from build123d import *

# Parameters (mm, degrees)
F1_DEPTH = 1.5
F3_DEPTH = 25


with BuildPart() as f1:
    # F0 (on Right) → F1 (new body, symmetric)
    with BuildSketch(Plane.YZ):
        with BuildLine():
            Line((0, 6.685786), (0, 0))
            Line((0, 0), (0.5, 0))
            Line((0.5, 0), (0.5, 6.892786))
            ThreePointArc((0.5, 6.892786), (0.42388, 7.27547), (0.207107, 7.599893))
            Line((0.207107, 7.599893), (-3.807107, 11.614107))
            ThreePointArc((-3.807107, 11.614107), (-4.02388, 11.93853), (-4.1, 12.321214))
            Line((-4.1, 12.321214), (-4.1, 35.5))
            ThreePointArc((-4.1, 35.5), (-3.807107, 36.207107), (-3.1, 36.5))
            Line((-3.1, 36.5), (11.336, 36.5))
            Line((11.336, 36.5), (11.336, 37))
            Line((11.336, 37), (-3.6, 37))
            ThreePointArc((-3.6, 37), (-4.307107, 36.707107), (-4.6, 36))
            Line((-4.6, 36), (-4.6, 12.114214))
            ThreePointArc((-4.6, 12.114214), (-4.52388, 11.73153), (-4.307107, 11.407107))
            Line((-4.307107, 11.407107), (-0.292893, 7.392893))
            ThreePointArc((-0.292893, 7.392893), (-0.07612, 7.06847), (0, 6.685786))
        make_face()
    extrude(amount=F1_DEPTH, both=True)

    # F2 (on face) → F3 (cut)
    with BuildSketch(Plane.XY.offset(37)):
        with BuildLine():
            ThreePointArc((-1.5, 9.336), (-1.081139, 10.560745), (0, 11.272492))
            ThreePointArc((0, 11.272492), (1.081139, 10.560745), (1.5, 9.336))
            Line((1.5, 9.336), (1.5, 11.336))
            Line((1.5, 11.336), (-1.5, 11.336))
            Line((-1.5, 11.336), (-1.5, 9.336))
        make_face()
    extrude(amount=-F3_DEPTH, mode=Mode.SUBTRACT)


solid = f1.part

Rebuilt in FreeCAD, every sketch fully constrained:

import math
import FreeCAD as App
import Part
import Sketcher
from FreeCAD import Vector
Q = App.Units.Quantity

doc = App.newDocument("Part")
body = doc.addObject("PartDesign::Body", "Body")

# Sketch on YZ plane
sketch1 = doc.addObject("Sketcher::SketchObject", "Sketch")
body.addObject(sketch1)
sketch1.AttachmentSupport = (doc.YZ_Plane, [""])
sketch1.MapMode = "FlatFace"
sketch1.addGeometry(Part.LineSegment(Vector(0, 6.7, 0), Vector(0, 0, 0)), False)
sketch1.addGeometry(Part.LineSegment(Vector(0, 0, 0), Vector(0.5, 0, 0)), False)
sketch1.addGeometry(Part.LineSegment(Vector(0.5, 0, 0), Vector(0.5, 6.9, 0)), False)
sketch1.addGeometry(Part.ArcOfCircle(Part.Circle(Vector(-0.5, 6.9, 0), Vector(0, 0, 1), 1), math.radians(0), math.radians(45)), False)
sketch1.addGeometry(Part.LineSegment(Vector(0.2, 7.6, 0), Vector(-3.8, 11.6, 0)), False)
sketch1.addGeometry(Part.ArcOfCircle(Part.Circle(Vector(-3.1, 12.3, 0), Vector(0, 0, 1), 1), math.radians(180), math.radians(225)), False)
sketch1.addGeometry(Part.LineSegment(Vector(-4.1, 12.3, 0), Vector(-4.1, 35.5, 0)), False)
sketch1.addGeometry(Part.ArcOfCircle(Part.Circle(Vector(-3.1, 35.5, 0), Vector(0, 0, 1), 1), math.radians(90), math.radians(180)), False)
sketch1.addGeometry(Part.LineSegment(Vector(-3.1, 36.5, 0), Vector(11.3, 36.5, 0)), False)
sketch1.addGeometry(Part.LineSegment(Vector(11.3, 36.5, 0), Vector(11.3, 37, 0)), False)
sketch1.addGeometry(Part.LineSegment(Vector(11.3, 37, 0), Vector(-3.6, 37, 0)), False)
sketch1.addGeometry(Part.ArcOfCircle(Part.Circle(Vector(-3.6, 36, 0), Vector(0, 0, 1), 1), math.radians(90), math.radians(180)), False)
sketch1.addGeometry(Part.LineSegment(Vector(-4.6, 36, 0), Vector(-4.6, 12.1, 0)), False)
sketch1.addGeometry(Part.ArcOfCircle(Part.Circle(Vector(-3.6, 12.1, 0), Vector(0, 0, 1), 1), math.radians(180), math.radians(225)), False)
sketch1.addGeometry(Part.LineSegment(Vector(-4.3, 11.4, 0), Vector(-0.3, 7.4, 0)), False)
sketch1.addGeometry(Part.ArcOfCircle(Part.Circle(Vector(-1, 6.7, 0), Vector(0, 0, 1), 1), math.radians(0), math.radians(45)), False)
sketch1.addConstraint(Sketcher.Constraint("Coincident", 0, 2, 1, 1))
sketch1.addConstraint(Sketcher.Constraint("Coincident", 1, 2, 2, 1))
sketch1.addConstraint(Sketcher.Constraint("Coincident", 2, 2, 3, 1))
sketch1.addConstraint(Sketcher.Constraint("Coincident", 3, 2, 4, 1))
sketch1.addConstraint(Sketcher.Constraint("Coincident", 4, 2, 5, 2))
sketch1.addConstraint(Sketcher.Constraint("Coincident", 5, 1, 6, 1))
sketch1.addConstraint(Sketcher.Constraint("Tangent", 6, 2, 7, 2))
sketch1.addConstraint(Sketcher.Constraint("Tangent", 7, 1, 8, 1))
sketch1.addConstraint(Sketcher.Constraint("Coincident", 8, 2, 9, 1))
sketch1.addConstraint(Sketcher.Constraint("Coincident", 9, 2, 10, 1))
sketch1.addConstraint(Sketcher.Constraint("Tangent", 10, 2, 11, 1))
sketch1.addConstraint(Sketcher.Constraint("Tangent", 11, 2, 12, 1))
sketch1.addConstraint(Sketcher.Constraint("Coincident", 12, 2, 13, 1))
sketch1.addConstraint(Sketcher.Constraint("Coincident", 13, 2, 14, 1))
sketch1.addConstraint(Sketcher.Constraint("Coincident", 14, 2, 15, 2))
sketch1.addConstraint(Sketcher.Constraint("Coincident", 15, 1, 0, 1))
sketch1.addConstraint(Sketcher.Constraint("Vertical", 0))
sketch1.addConstraint(Sketcher.Constraint("Horizontal", 1))
sketch1.addConstraint(Sketcher.Constraint("Vertical", 2))
sketch1.addConstraint(Sketcher.Constraint("Vertical", 6))
sketch1.addConstraint(Sketcher.Constraint("Horizontal", 8))
sketch1.addConstraint(Sketcher.Constraint("Vertical", 9))
sketch1.addConstraint(Sketcher.Constraint("Horizontal", 10))
sketch1.addConstraint(Sketcher.Constraint("Vertical", 12))
sketch1.addConstraint(Sketcher.Constraint("Coincident", 0, 2, -1, 1))
sketch1.addConstraint(Sketcher.Constraint("Equal", 3, 5))
sketch1.addConstraint(Sketcher.Constraint("Equal", 7, 11))
sketch1.addConstraint(Sketcher.Constraint("Equal", 5, 13))
sketch1.addConstraint(Sketcher.Constraint("Equal", 13, 15))
sketch1.addConstraint(Sketcher.Constraint("Parallel", 4, 14))
sketch1.addConstraint(Sketcher.Constraint("Equal", 1, 9))
sketch1.addConstraint(Sketcher.Constraint("Equal", 4, 14))
sketch1.addConstraint(Sketcher.Constraint("Radius", 7, 0.999999))
sketch1.addConstraint(Sketcher.Constraint("Angle", 4, Q("135 deg")))
sketch1.addConstraint(Sketcher.Constraint("DistanceX", 1, 1, 1, 2, 0.5))
sketch1.addConstraint(Sketcher.Constraint("DistanceY", -1, 1, 11, 3, 36.000001))
sketch1.addConstraint(Sketcher.Constraint("DistanceX", 7, 3, -1, 1, 3.100001))
sketch1.addConstraint(Sketcher.Constraint("DistanceX", 11, 3, -1, 1, 3.600001))
sketch1.addConstraint(Sketcher.Constraint("DistanceX", 13, 2, 4, 2, 0.5))
sketch1.addConstraint(Sketcher.Constraint("DistanceX", 8, 1, 8, 2, 14.436))
sketch1.addConstraint(Sketcher.Constraint("Radius", 3, 0.999994))
sketch1.addConstraint(Sketcher.Constraint("DistanceY", 13, 3, 5, 3, 0.207))
sketch1.addConstraint(Sketcher.Constraint("DistanceY", 12, 2, 5, 1, 0.207))
sketch1.addConstraint(Sketcher.Constraint("DistanceY", 15, 1, 2, 2, 0.207))
sketch1.addConstraint(Sketcher.Constraint("DistanceX", 3, 3, 3, 2, 0.707101))
sketch1.addConstraint(Sketcher.Constraint("DistanceX", 4, 2, 13, 3, 0.207101))
sketch1.addConstraint(Sketcher.Constraint("DistanceY", 0, 2, 0, 1, 6.685786))
sketch1.addConstraint(Sketcher.Constraint("DistanceY", 6, 1, 6, 2, 23.178786))
sketch1.addConstraint(Sketcher.Constraint("DistanceY", -1, 1, 3, 3, 6.892789))
pad1 = doc.addObject("PartDesign::Pad", "Pad")
body.addObject(pad1)
pad1.Profile = sketch1
pad1.Length = 3
pad1.Midplane = True

# Sketch on XY plane
sketch2 = doc.addObject("Sketcher::SketchObject", "Sketch001")
body.addObject(sketch2)
sketch2.AttachmentSupport = (doc.XY_Plane, [""])
sketch2.MapMode = "FlatFace"
sketch2.AttachmentOffset = App.Placement(Vector(0, 0, 37), App.Rotation())
sketch2.addGeometry(Part.ArcOfCircle(Part.Circle(Vector(0.5, 9.3, 0), Vector(0, 0, 1), 2), math.radians(104), math.radians(180)), False)
sketch2.addGeometry(Part.ArcOfCircle(Part.Circle(Vector(-0.5, 9.3, 0), Vector(0, 0, 1), 2), math.radians(0), math.radians(76)), False)
sketch2.addGeometry(Part.LineSegment(Vector(1.5, 9.3, 0), Vector(1.5, 11.3, 0)), False)
sketch2.addGeometry(Part.LineSegment(Vector(1.5, 11.3, 0), Vector(-1.5, 11.3, 0)), False)
sketch2.addGeometry(Part.LineSegment(Vector(-1.5, 11.3, 0), Vector(-1.5, 9.3, 0)), False)
sketch2.addConstraint(Sketcher.Constraint("Coincident", 0, 1, 1, 2))
sketch2.addConstraint(Sketcher.Constraint("Tangent", 1, 1, 2, 1))
sketch2.addConstraint(Sketcher.Constraint("Coincident", 2, 2, 3, 1))
sketch2.addConstraint(Sketcher.Constraint("Coincident", 3, 2, 4, 1))
sketch2.addConstraint(Sketcher.Constraint("Tangent", 4, 2, 0, 2))
sketch2.addConstraint(Sketcher.Constraint("Vertical", 2))
sketch2.addConstraint(Sketcher.Constraint("Horizontal", 3))
sketch2.addConstraint(Sketcher.Constraint("Vertical", 4))
sketch2.addConstraint(Sketcher.Constraint("Equal", 0, 1))
sketch2.addConstraint(Sketcher.Constraint("Symmetric", 0, 3, 1, 3, -2))
sketch2.addConstraint(Sketcher.Constraint("Radius", 0, 2.0))
sketch2.addConstraint(Sketcher.Constraint("DistanceX", 3, 2, 3, 1, 3.0))
sketch2.addConstraint(Sketcher.Constraint("DistanceY", 2, 1, 2, 2, 2.0))
sketch2.addConstraint(Sketcher.Constraint("DistanceY", -1, 1, 0, 3, 9.336))
pocket1 = doc.addObject("PartDesign::Pocket", "Pocket")
body.addObject(pocket1)
pocket1.Profile = sketch2
pocket1.Length = 25

doc.recompute()
